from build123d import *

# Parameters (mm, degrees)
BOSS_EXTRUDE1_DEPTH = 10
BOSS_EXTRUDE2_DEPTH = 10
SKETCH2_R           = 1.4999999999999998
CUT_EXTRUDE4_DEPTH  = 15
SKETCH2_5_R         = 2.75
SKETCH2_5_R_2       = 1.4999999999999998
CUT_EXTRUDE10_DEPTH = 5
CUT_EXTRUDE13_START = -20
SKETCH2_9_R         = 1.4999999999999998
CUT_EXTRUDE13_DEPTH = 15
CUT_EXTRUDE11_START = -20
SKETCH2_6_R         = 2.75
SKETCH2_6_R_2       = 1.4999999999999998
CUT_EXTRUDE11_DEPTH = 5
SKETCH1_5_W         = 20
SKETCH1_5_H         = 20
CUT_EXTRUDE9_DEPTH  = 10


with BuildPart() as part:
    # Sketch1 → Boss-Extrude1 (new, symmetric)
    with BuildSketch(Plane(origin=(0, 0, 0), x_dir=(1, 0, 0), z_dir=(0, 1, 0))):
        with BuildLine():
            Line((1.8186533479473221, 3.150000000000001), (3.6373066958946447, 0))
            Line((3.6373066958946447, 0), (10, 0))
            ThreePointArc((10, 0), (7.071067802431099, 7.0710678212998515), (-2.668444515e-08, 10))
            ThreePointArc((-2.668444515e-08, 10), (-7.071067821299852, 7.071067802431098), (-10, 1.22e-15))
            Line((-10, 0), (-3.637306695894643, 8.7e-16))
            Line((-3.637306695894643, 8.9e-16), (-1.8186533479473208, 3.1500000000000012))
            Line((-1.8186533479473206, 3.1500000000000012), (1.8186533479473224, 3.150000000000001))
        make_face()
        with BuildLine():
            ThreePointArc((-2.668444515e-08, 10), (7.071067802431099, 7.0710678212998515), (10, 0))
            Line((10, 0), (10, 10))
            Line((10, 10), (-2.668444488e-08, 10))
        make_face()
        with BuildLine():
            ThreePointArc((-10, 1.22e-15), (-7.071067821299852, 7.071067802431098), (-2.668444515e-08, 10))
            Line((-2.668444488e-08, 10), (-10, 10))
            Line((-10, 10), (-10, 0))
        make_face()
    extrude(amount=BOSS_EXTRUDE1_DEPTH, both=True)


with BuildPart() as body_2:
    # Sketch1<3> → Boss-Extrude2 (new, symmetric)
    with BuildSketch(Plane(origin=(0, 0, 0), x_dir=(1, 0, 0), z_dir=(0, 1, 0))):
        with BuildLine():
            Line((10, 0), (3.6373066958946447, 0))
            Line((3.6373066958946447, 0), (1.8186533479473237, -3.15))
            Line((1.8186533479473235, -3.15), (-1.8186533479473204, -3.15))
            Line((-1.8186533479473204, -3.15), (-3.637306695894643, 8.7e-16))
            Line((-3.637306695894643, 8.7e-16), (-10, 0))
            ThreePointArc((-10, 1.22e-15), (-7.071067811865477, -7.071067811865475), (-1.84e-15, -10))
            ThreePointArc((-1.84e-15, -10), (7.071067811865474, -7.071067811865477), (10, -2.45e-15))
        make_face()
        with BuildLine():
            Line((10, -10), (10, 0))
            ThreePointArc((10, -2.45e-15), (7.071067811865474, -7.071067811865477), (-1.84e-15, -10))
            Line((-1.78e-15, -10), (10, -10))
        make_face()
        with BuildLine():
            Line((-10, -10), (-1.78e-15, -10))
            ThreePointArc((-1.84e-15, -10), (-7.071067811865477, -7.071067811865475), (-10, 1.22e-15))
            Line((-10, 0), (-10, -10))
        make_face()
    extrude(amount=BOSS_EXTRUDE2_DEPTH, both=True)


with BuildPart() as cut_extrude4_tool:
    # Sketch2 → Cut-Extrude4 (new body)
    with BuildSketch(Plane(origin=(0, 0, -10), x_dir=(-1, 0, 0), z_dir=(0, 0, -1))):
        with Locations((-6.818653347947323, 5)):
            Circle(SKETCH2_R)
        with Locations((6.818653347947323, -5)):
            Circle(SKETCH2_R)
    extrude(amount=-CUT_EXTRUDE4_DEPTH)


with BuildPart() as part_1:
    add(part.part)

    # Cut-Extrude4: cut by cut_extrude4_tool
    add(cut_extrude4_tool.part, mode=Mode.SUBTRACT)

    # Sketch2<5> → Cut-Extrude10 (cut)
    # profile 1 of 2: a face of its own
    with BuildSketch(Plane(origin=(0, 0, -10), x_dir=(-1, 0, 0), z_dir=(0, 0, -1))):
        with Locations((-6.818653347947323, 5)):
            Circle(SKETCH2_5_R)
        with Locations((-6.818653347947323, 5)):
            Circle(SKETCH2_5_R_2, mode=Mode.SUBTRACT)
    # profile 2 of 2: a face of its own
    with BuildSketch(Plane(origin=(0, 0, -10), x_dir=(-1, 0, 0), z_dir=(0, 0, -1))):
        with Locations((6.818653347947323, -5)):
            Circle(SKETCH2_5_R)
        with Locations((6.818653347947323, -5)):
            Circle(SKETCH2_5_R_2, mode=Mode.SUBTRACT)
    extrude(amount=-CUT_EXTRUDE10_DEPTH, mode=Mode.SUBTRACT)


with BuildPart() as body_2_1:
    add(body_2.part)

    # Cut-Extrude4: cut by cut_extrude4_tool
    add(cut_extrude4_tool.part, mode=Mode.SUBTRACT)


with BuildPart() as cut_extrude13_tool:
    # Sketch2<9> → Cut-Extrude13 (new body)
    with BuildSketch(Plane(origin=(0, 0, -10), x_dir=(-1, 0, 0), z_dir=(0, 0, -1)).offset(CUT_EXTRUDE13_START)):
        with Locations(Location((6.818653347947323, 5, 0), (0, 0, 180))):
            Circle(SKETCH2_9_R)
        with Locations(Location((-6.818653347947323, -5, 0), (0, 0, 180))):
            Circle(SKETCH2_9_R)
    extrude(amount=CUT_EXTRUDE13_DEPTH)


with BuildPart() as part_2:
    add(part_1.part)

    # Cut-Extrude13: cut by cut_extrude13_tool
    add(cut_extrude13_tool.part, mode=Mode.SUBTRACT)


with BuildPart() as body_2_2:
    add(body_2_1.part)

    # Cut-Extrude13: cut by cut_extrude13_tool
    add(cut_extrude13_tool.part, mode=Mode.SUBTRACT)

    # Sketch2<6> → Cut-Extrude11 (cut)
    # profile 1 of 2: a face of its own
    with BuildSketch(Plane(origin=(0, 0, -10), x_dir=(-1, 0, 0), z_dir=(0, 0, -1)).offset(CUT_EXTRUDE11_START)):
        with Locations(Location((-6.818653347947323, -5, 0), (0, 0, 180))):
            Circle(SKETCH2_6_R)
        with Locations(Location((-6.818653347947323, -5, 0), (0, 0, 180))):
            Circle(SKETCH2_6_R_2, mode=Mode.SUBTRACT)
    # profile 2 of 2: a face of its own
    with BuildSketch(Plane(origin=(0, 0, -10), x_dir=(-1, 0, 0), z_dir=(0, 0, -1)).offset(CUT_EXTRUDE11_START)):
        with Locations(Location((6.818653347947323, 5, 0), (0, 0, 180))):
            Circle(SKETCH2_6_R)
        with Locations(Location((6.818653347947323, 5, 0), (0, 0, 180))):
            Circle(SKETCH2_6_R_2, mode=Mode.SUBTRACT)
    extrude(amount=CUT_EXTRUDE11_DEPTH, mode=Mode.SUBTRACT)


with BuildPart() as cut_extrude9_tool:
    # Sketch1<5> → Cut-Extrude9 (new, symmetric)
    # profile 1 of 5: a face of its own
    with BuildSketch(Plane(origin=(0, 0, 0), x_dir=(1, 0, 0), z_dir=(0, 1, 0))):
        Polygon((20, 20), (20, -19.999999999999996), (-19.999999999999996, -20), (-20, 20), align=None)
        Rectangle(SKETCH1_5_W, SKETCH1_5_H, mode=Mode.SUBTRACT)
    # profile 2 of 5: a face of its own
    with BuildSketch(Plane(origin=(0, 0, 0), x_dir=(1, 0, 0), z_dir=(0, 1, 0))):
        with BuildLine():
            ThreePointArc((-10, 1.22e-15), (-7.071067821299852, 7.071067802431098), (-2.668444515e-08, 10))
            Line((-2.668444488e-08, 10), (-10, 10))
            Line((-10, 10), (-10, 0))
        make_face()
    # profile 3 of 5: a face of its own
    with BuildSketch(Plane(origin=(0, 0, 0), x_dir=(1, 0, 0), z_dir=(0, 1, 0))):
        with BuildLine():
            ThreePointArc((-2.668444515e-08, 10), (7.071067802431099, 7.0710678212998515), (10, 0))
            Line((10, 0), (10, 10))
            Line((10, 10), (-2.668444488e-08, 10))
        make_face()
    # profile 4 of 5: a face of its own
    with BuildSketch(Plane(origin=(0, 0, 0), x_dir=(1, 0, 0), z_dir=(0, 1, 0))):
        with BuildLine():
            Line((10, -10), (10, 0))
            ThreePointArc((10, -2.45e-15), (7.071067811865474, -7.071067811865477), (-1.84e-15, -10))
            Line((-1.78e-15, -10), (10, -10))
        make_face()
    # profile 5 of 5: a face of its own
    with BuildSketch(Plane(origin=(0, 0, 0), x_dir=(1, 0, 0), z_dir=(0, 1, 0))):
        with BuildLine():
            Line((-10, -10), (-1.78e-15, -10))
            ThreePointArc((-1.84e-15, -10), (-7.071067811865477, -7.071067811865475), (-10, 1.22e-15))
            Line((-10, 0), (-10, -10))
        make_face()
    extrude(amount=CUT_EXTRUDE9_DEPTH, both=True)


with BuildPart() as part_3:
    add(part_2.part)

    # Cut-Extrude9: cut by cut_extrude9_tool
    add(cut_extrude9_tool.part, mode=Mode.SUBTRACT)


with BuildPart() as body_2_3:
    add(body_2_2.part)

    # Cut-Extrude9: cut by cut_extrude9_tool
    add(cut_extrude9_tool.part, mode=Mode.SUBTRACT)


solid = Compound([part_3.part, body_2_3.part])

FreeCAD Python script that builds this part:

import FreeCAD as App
import Part
import Sketcher
from FreeCAD import Vector
Q = App.Units.Quantity

doc = App.newDocument("Part")
body = doc.addObject("PartDesign::Body", "Body")

sketch1 = body.newObject("Sketcher::SketchObject", "Sketch")
sketch1.AttachmentSupport = (doc.getObject("XZ_Plane"), [""])
sketch1.MapMode = "FlatFace"
sketch1.addGeometry(Part.LineSegment(Vector(1.8, -3.1, 0), Vector(3.6, 0, 0)), False)
sketch1.addGeometry(Part.LineSegment(Vector(3.6, 0, 0), Vector(10, 0, 0)), False)
sketch1.addGeometry(Part.LineSegment(Vector(10, 0, 0), Vector(10, -10, 0)), False)
sketch1.addGeometry(Part.LineSegment(Vector(10, -10, 0), Vector(-10, -10, 0)), False)
sketch1.addGeometry(Part.LineSegment(Vector(-10, -10, 0), Vector(-10, 0, 0)), False)
sketch1.addGeometry(Part.LineSegment(Vector(-10, 0, 0), Vector(-3.6, 0, 0)), False)
sketch1.addGeometry(Part.LineSegment(Vector(-3.6, 0, 0), Vector(-1.8, -3.1, 0)), False)
sketch1.addGeometry(Part.LineSegment(Vector(-1.8, -3.1, 0), Vector(1.8, -3.1, 0)), False)
sketch1.addConstraint(Sketcher.Constraint("Coincident", 0, 2, 1, 1))
sketch1.addConstraint(Sketcher.Constraint("Coincident", 1, 2, 2, 1))
sketch1.addConstraint(Sketcher.Constraint("Coincident", 2, 2, 3, 1))
sketch1.addConstraint(Sketcher.Constraint("Coincident", 3, 2, 4, 1))
sketch1.addConstraint(Sketcher.Constraint("Coincident", 4, 2, 5, 1))
sketch1.addConstraint(Sketcher.Constraint("Coincident", 5, 2, 6, 1))
sketch1.addConstraint(Sketcher.Constraint("Coincident", 6, 2, 7, 1))
sketch1.addConstraint(Sketcher.Constraint("Coincident", 7, 2, 0, 1))
sketch1.addConstraint(Sketcher.Constraint("Horizontal", 1))
sketch1.addConstraint(Sketcher.Constraint("Vertical", 2))
sketch1.addConstraint(Sketcher.Constraint("Horizontal", 3))
sketch1.addConstraint(Sketcher.Constraint("Vertical", 4))
sketch1.addConstraint(Sketcher.Constraint("Horizontal", 5))
sketch1.addConstraint(Sketcher.Constraint("Horizontal", 7))
sketch1.addConstraint(Sketcher.Constraint("Symmetric", 1, 2, 4, 2, -1, 1))
sketch1.addConstraint(Sketcher.Constraint("Symmetric", 0, 2, 5, 2, -2))
sketch1.addConstraint(Sketcher.Constraint("Equal", 0, 6))
sketch1.addConstraint(Sketcher.Constraint("DistanceX", 3, 2, 3, 1, Q("20 mm")))
sketch1.addConstraint(Sketcher.Constraint("DistanceY", 2, 2, 2, 1, Q("10 mm")))
sketch1.addConstraint(Sketcher.Constraint("Angle", 0, Q("60 deg")))
sketch1.addConstraint(Sketcher.Constraint("DistanceY", 6, 2, -1, 1, Q("3.15 mm")))
sketch1.addConstraint(Sketcher.Constraint("DistanceX", 1, 1, 1, 2, Q("6.362693 mm")))
pad1 = body.newObject("PartDesign::Pad", "Pad")
pad1.Profile = sketch1
pad1.Length = 20
pad1.Midplane = True
body2 = doc.addObject("PartDesign::Body", "Body001")

sketch2 = body2.newObject("Sketcher::SketchObject", "Sketch001")
sketch2.AttachmentSupport = (doc.getObject("XZ_Plane001"), [""])
sketch2.MapMode = "FlatFace"
sketch2.addGeometry(Part.LineSegment(Vector(10, 0, 0), Vector(3.6, 0, 0)), False)
sketch2.addGeometry(Part.LineSegment(Vector(3.6, 0, 0), Vector(1.8, 3.1, 0)), False)
sketch2.addGeometry(Part.LineSegment(Vector(1.8, 3.1, 0), Vector(-1.8, 3.1, 0)), False)
sketch2.addGeometry(Part.LineSegment(Vector(-1.8, 3.1, 0), Vector(-3.6, 0, 0)), False)
sketch2.addGeometry(Part.LineSegment(Vector(-3.6, 0, 0), Vector(-10, 0, 0)), False)
sketch2.addGeometry(Part.LineSegment(Vector(-10, 0, 0), Vector(-10, 10, 0)), False)
sketch2.addGeometry(Part.LineSegment(Vector(-10, 10, 0), Vector(10, 10, 0)), False)
sketch2.addGeometry(Part.LineSegment(Vector(10, 10, 0), Vector(10, 0, 0)), False)
sketch2.addConstraint(Sketcher.Constraint("Coincident", 0, 2, 1, 1))
sketch2.addConstraint(Sketcher.Constraint("Coincident", 1, 2, 2, 1))
sketch2.addConstraint(Sketcher.Constraint("Coincident", 2, 2, 3, 1))
sketch2.addConstraint(Sketcher.Constraint("Coincident", 3, 2, 4, 1))
sketch2.addConstraint(Sketcher.Constraint("Coincident", 4, 2, 5, 1))
sketch2.addConstraint(Sketcher.Constraint("Coincident", 5, 2, 6, 1))
sketch2.addConstraint(Sketcher.Constraint("Coincident", 6, 2, 7, 1))
sketch2.addConstraint(Sketcher.Constraint("Coincident", 7, 2, 0, 1))
sketch2.addConstraint(Sketcher.Constraint("Horizontal", 0))
sketch2.addConstraint(Sketcher.Constraint("Horizontal", 2))
sketch2.addConstraint(Sketcher.Constraint("Horizontal", 4))
sketch2.addConstraint(Sketcher.Constraint("Vertical", 5))
sketch2.addConstraint(Sketcher.Constraint("Horizontal", 6))
sketch2.addConstraint(Sketcher.Constraint("Vertical", 7))
sketch2.addConstraint(Sketcher.Constraint("Symmetric", 0, 2, 3, 2, -1, 1))
sketch2.addConstraint(Sketcher.Constraint("Symmetric", 4, 2, 7, 2, -2))
sketch2.addConstraint(Sketcher.Constraint("Equal", 1, 3))
sketch2.addConstraint(Sketcher.Constraint("DistanceX", 6, 1, 6, 2, Q("20 mm")))
sketch2.addConstraint(Sketcher.Constraint("DistanceY", 5, 1, 5, 2, Q("10 mm")))
sketch2.addConstraint(Sketcher.Constraint("Angle", 1, Q("120 deg")))
sketch2.addConstraint(Sketcher.Constraint("DistanceY", -1, 1, 1, 2, Q("3.15 mm")))
sketch2.addConstraint(Sketcher.Constraint("DistanceX", 0, 2, 0, 1, Q("6.362693 mm")))
pad2 = body2.newObject("PartDesign::Pad", "Pad001")
pad2.Profile = sketch2
pad2.Length = 20
pad2.Midplane = True
body3 = doc.addObject("PartDesign::Body", "Body002")
body3.AllowCompound = True

sketch3 = body3.newObject("Sketcher::SketchObject", "Sketch002")
sketch3.AttachmentSupport = (doc.getObject("XY_Plane002"), [""])
sketch3.MapMode = "FlatFace"
sketch3.AttachmentOffset = App.Placement(Vector(0, 0, -10), App.Rotation())
sketch3.addGeometry(Part.Circle(Vector(6.8, 5, 0), Vector(0, 0, 1), 1.5), False)
sketch3.addGeometry(Part.Circle(Vector(-6.8, -5, 0), Vector(0, 0, 1), 1.5), False)
sketch3.addConstraint(Sketcher.Constraint("Equal", 0, 1))
sketch3.addConstraint(Sketcher.Constraint("Symmetric", 0, 3, 1, 3, -1, 1))
sketch3.addConstraint(Sketcher.Constraint("Diameter", 0, Q("3 mm")))
sketch3.addConstraint(Sketcher.Constraint("DistanceY", -1, 1, 0, 3, Q("5 mm")))
sketch3.addConstraint(Sketcher.Constraint("DistanceX", -1, 1, 0, 3, Q("6.818653 mm")))
pad3 = body3.newObject("PartDesign::Pad", "Pad002")
pad3.Profile = sketch3
pad3.Length = 15
doc.recompute()

body4 = doc.addObject("PartDesign::Body", "Body003")
body4.BaseFeature = body3
boolean = body.newObject("PartDesign::Boolean", "Boolean")
boolean.Type = "Cut"
boolean.addObjects([body4])
doc.recompute()

sketch4 = body.newObject("Sketcher::SketchObject", "Sketch003")
sketch4.AttachmentSupport = (doc.getObject("XY_Plane"), [""])
sketch4.MapMode = "FlatFace"
sketch4.AttachmentOffset = App.Placement(Vector(0, 0, -10), App.Rotation())
sketch4.addGeometry(Part.Circle(Vector(6.8, 5, 0), Vector(0, 0, 1), 2.8), False)
sketch4.addGeometry(Part.Circle(Vector(6.8, 5, 0), Vector(0, 0, 1), 1.5), False)
sketch4.addGeometry(Part.Circle(Vector(-6.8, -5, 0), Vector(0, 0, 1), 2.8), False)
sketch4.addGeometry(Part.Circle(Vector(-6.8, -5, 0), Vector(0, 0, 1), 1.5), False)
sketch4.addConstraint(Sketcher.Constraint("Coincident", 1, 3, 0, 3))
sketch4.addConstraint(Sketcher.Constraint("Coincident", 3, 3, 2, 3))
sketch4.addConstraint(Sketcher.Constraint("Equal", 0, 2))
sketch4.addConstraint(Sketcher.Constraint("Equal", 1, 3))
sketch4.addConstraint(Sketcher.Constraint("Symmetric", 0, 3, 2, 3, -1, 1))
sketch4.addConstraint(Sketcher.Constraint("Diameter", 1, Q("3 mm")))
sketch4.addConstraint(Sketcher.Constraint("Diameter", 0, Q("5.5 mm")))
sketch4.addConstraint(Sketcher.Constraint("DistanceY", -1, 1, 0, 3, Q("5 mm")))
sketch4.addConstraint(Sketcher.Constraint("DistanceX", -1, 1, 0, 3, Q("6.818653 mm")))
pocket1 = body.newObject("PartDesign::Pocket", "Pocket")
pocket1.Profile = sketch4
pocket1.Length = 5
pocket1.Reversed = True
doc.recompute()

boolean2 = body2.newObject("PartDesign::Boolean", "Boolean001")
boolean2.Type = "Cut"
boolean2.addObjects([body3])
body5 = doc.addObject("PartDesign::Body", "Body004")
body5.AllowCompound = True

sketch5 = body5.newObject("Sketcher::SketchObject", "Sketch004")
sketch5.AttachmentSupport = (doc.getObject("XY_Plane004"), [""])
sketch5.MapMode = "FlatFace"
sketch5.AttachmentOffset = App.Placement(Vector(0, 0, 10), App.Rotation())
sketch5.addGeometry(Part.Circle(Vector(-6.8, 5, 0), Vector(0, 0, 1), 1.5), False)
sketch5.addGeometry(Part.Circle(Vector(6.8, -5, 0), Vector(0, 0, 1), 1.5), False)
sketch5.addConstraint(Sketcher.Constraint("Equal", 0, 1))
sketch5.addConstraint(Sketcher.Constraint("Symmetric", 0, 3, 1, 3, -1, 1))
sketch5.addConstraint(Sketcher.Constraint("Diameter", 0, Q("3 mm")))
sketch5.addConstraint(Sketcher.Constraint("DistanceY", -1, 1, 0, 3, Q("5 mm")))
sketch5.addConstraint(Sketcher.Constraint("DistanceX", 0, 3, -1, 1, Q("6.818653 mm")))
pad4 = body5.newObject("PartDesign::Pad", "Pad003")
pad4.Profile = sketch5
pad4.Length = 15
pad4.Reversed = True
doc.recompute()

body6 = doc.addObject("PartDesign::Body", "Body005")
body6.BaseFeature = body5
boolean3 = body.newObject("PartDesign::Boolean", "Boolean002")
boolean3.Type = "Cut"
boolean3.addObjects([body6])
doc.recompute()

boolean4 = body2.newObject("PartDesign::Boolean", "Boolean003")
boolean4.Type = "Cut"
boolean4.addObjects([body5])

sketch6 = body2.newObject("Sketcher::SketchObject", "Sketch005")
sketch6.AttachmentSupport = (doc.getObject("XY_Plane001"), [""])
sketch6.MapMode = "FlatFace"
sketch6.AttachmentOffset = App.Placement(Vector(0, 0, 10), App.Rotation())
sketch6.addGeometry(Part.Circle(Vector(6.8, -5, 0), Vector(0, 0, 1), 2.8), False)
sketch6.addGeometry(Part.Circle(Vector(6.8, -5, 0), Vector(0, 0, 1), 1.5), False)
sketch6.addGeometry(Part.Circle(Vector(-6.8, 5, 0), Vector(0, 0, 1), 2.8), False)
sketch6.addGeometry(Part.Circle(Vector(-6.8, 5, 0), Vector(0, 0, 1), 1.5), False)
sketch6.addConstraint(Sketcher.Constraint("Coincident", 1, 3, 0, 3))
sketch6.addConstraint(Sketcher.Constraint("Coincident", 3, 3, 2, 3))
sketch6.addConstraint(Sketcher.Constraint("Equal", 0, 2))
sketch6.addConstraint(Sketcher.Constraint("Equal", 1, 3))
sketch6.addConstraint(Sketcher.Constraint("Symmetric", 0, 3, 2, 3, -1, 1))
sketch6.addConstraint(Sketcher.Constraint("Diameter", 1, Q("3 mm")))
sketch6.addConstraint(Sketcher.Constraint("Diameter", 0, Q("5.5 mm")))
sketch6.addConstraint(Sketcher.Constraint("DistanceY", 0, 3, -1, 1, Q("5 mm")))
sketch6.addConstraint(Sketcher.Constraint("DistanceX", -1, 1, 0, 3, Q("6.818653 mm")))
pocket2 = body2.newObject("PartDesign::Pocket", "Pocket001")
pocket2.Profile = sketch6
pocket2.Length = 5
body7 = doc.addObject("PartDesign::Body", "Body006")

sketch7 = body7.newObject("Sketcher::SketchObject", "Sketch006")
sketch7.AttachmentSupport = (doc.getObject("XZ_Plane006"), [""])
sketch7.MapMode = "FlatFace"
sketch7.addGeometry(Part.LineSegment(Vector(20, 20, 0), Vector(20, -20, 0)), False)
sketch7.addGeometry(Part.LineSegment(Vector(20, -20, 0), Vector(-20, -20, 0)), False)
sketch7.addGeometry(Part.LineSegment(Vector(-20, -20, 0), Vector(-20, 20, 0)), False)
sketch7.addGeometry(Part.LineSegment(Vector(-20, 20, 0), Vector(20, 20, 0)), False)
sketch7.addGeometry(Part.Circle(Vector(0, 0, 0), Vector(0, 0, 1), 10), False)
sketch7.addConstraint(Sketcher.Constraint("Coincident", 0, 2, 1, 1))
sketch7.addConstraint(Sketcher.Constraint("Coincident", 1, 2, 2, 1))
sketch7.addConstraint(Sketcher.Constraint("Coincident", 2, 2, 3, 1))
sketch7.addConstraint(Sketcher.Constraint("Coincident", 3, 2, 0, 1))
sketch7.addConstraint(Sketcher.Constraint("Vertical", 0))
sketch7.addConstraint(Sketcher.Constraint("Horizontal", 1))
sketch7.addConstraint(Sketcher.Constraint("Vertical", 2))
sketch7.addConstraint(Sketcher.Constraint("Horizontal", 3))
sketch7.addConstraint(Sketcher.Constraint("Coincident", 4, 3, -1, 1))
sketch7.addConstraint(Sketcher.Constraint("Symmetric", 0, 2, 2, 2, -1, 1))
sketch7.addConstraint(Sketcher.Constraint("Equal", 3, 0))
sketch7.addConstraint(Sketcher.Constraint("Diameter", 4, Q("20 mm")))
sketch7.addConstraint(Sketcher.Constraint("DistanceX", 1, 2, 1, 1, Q("40 mm")))
pad5 = body7.newObject("PartDesign::Pad", "Pad004")
pad5.Profile = sketch7
pad5.Length = 20
pad5.Midplane = True
doc.recompute()

body8 = doc.addObject("PartDesign::Body", "Body007")
body8.BaseFeature = body7
boolean5 = body.newObject("PartDesign::Boolean", "Boolean004")
boolean5.Type = "Cut"
boolean5.addObjects([body8])
doc.recompute()

boolean6 = body2.newObject("PartDesign::Boolean", "Boolean005")
boolean6.Type = "Cut"
boolean6.addObjects([body7])

doc.recompute()
